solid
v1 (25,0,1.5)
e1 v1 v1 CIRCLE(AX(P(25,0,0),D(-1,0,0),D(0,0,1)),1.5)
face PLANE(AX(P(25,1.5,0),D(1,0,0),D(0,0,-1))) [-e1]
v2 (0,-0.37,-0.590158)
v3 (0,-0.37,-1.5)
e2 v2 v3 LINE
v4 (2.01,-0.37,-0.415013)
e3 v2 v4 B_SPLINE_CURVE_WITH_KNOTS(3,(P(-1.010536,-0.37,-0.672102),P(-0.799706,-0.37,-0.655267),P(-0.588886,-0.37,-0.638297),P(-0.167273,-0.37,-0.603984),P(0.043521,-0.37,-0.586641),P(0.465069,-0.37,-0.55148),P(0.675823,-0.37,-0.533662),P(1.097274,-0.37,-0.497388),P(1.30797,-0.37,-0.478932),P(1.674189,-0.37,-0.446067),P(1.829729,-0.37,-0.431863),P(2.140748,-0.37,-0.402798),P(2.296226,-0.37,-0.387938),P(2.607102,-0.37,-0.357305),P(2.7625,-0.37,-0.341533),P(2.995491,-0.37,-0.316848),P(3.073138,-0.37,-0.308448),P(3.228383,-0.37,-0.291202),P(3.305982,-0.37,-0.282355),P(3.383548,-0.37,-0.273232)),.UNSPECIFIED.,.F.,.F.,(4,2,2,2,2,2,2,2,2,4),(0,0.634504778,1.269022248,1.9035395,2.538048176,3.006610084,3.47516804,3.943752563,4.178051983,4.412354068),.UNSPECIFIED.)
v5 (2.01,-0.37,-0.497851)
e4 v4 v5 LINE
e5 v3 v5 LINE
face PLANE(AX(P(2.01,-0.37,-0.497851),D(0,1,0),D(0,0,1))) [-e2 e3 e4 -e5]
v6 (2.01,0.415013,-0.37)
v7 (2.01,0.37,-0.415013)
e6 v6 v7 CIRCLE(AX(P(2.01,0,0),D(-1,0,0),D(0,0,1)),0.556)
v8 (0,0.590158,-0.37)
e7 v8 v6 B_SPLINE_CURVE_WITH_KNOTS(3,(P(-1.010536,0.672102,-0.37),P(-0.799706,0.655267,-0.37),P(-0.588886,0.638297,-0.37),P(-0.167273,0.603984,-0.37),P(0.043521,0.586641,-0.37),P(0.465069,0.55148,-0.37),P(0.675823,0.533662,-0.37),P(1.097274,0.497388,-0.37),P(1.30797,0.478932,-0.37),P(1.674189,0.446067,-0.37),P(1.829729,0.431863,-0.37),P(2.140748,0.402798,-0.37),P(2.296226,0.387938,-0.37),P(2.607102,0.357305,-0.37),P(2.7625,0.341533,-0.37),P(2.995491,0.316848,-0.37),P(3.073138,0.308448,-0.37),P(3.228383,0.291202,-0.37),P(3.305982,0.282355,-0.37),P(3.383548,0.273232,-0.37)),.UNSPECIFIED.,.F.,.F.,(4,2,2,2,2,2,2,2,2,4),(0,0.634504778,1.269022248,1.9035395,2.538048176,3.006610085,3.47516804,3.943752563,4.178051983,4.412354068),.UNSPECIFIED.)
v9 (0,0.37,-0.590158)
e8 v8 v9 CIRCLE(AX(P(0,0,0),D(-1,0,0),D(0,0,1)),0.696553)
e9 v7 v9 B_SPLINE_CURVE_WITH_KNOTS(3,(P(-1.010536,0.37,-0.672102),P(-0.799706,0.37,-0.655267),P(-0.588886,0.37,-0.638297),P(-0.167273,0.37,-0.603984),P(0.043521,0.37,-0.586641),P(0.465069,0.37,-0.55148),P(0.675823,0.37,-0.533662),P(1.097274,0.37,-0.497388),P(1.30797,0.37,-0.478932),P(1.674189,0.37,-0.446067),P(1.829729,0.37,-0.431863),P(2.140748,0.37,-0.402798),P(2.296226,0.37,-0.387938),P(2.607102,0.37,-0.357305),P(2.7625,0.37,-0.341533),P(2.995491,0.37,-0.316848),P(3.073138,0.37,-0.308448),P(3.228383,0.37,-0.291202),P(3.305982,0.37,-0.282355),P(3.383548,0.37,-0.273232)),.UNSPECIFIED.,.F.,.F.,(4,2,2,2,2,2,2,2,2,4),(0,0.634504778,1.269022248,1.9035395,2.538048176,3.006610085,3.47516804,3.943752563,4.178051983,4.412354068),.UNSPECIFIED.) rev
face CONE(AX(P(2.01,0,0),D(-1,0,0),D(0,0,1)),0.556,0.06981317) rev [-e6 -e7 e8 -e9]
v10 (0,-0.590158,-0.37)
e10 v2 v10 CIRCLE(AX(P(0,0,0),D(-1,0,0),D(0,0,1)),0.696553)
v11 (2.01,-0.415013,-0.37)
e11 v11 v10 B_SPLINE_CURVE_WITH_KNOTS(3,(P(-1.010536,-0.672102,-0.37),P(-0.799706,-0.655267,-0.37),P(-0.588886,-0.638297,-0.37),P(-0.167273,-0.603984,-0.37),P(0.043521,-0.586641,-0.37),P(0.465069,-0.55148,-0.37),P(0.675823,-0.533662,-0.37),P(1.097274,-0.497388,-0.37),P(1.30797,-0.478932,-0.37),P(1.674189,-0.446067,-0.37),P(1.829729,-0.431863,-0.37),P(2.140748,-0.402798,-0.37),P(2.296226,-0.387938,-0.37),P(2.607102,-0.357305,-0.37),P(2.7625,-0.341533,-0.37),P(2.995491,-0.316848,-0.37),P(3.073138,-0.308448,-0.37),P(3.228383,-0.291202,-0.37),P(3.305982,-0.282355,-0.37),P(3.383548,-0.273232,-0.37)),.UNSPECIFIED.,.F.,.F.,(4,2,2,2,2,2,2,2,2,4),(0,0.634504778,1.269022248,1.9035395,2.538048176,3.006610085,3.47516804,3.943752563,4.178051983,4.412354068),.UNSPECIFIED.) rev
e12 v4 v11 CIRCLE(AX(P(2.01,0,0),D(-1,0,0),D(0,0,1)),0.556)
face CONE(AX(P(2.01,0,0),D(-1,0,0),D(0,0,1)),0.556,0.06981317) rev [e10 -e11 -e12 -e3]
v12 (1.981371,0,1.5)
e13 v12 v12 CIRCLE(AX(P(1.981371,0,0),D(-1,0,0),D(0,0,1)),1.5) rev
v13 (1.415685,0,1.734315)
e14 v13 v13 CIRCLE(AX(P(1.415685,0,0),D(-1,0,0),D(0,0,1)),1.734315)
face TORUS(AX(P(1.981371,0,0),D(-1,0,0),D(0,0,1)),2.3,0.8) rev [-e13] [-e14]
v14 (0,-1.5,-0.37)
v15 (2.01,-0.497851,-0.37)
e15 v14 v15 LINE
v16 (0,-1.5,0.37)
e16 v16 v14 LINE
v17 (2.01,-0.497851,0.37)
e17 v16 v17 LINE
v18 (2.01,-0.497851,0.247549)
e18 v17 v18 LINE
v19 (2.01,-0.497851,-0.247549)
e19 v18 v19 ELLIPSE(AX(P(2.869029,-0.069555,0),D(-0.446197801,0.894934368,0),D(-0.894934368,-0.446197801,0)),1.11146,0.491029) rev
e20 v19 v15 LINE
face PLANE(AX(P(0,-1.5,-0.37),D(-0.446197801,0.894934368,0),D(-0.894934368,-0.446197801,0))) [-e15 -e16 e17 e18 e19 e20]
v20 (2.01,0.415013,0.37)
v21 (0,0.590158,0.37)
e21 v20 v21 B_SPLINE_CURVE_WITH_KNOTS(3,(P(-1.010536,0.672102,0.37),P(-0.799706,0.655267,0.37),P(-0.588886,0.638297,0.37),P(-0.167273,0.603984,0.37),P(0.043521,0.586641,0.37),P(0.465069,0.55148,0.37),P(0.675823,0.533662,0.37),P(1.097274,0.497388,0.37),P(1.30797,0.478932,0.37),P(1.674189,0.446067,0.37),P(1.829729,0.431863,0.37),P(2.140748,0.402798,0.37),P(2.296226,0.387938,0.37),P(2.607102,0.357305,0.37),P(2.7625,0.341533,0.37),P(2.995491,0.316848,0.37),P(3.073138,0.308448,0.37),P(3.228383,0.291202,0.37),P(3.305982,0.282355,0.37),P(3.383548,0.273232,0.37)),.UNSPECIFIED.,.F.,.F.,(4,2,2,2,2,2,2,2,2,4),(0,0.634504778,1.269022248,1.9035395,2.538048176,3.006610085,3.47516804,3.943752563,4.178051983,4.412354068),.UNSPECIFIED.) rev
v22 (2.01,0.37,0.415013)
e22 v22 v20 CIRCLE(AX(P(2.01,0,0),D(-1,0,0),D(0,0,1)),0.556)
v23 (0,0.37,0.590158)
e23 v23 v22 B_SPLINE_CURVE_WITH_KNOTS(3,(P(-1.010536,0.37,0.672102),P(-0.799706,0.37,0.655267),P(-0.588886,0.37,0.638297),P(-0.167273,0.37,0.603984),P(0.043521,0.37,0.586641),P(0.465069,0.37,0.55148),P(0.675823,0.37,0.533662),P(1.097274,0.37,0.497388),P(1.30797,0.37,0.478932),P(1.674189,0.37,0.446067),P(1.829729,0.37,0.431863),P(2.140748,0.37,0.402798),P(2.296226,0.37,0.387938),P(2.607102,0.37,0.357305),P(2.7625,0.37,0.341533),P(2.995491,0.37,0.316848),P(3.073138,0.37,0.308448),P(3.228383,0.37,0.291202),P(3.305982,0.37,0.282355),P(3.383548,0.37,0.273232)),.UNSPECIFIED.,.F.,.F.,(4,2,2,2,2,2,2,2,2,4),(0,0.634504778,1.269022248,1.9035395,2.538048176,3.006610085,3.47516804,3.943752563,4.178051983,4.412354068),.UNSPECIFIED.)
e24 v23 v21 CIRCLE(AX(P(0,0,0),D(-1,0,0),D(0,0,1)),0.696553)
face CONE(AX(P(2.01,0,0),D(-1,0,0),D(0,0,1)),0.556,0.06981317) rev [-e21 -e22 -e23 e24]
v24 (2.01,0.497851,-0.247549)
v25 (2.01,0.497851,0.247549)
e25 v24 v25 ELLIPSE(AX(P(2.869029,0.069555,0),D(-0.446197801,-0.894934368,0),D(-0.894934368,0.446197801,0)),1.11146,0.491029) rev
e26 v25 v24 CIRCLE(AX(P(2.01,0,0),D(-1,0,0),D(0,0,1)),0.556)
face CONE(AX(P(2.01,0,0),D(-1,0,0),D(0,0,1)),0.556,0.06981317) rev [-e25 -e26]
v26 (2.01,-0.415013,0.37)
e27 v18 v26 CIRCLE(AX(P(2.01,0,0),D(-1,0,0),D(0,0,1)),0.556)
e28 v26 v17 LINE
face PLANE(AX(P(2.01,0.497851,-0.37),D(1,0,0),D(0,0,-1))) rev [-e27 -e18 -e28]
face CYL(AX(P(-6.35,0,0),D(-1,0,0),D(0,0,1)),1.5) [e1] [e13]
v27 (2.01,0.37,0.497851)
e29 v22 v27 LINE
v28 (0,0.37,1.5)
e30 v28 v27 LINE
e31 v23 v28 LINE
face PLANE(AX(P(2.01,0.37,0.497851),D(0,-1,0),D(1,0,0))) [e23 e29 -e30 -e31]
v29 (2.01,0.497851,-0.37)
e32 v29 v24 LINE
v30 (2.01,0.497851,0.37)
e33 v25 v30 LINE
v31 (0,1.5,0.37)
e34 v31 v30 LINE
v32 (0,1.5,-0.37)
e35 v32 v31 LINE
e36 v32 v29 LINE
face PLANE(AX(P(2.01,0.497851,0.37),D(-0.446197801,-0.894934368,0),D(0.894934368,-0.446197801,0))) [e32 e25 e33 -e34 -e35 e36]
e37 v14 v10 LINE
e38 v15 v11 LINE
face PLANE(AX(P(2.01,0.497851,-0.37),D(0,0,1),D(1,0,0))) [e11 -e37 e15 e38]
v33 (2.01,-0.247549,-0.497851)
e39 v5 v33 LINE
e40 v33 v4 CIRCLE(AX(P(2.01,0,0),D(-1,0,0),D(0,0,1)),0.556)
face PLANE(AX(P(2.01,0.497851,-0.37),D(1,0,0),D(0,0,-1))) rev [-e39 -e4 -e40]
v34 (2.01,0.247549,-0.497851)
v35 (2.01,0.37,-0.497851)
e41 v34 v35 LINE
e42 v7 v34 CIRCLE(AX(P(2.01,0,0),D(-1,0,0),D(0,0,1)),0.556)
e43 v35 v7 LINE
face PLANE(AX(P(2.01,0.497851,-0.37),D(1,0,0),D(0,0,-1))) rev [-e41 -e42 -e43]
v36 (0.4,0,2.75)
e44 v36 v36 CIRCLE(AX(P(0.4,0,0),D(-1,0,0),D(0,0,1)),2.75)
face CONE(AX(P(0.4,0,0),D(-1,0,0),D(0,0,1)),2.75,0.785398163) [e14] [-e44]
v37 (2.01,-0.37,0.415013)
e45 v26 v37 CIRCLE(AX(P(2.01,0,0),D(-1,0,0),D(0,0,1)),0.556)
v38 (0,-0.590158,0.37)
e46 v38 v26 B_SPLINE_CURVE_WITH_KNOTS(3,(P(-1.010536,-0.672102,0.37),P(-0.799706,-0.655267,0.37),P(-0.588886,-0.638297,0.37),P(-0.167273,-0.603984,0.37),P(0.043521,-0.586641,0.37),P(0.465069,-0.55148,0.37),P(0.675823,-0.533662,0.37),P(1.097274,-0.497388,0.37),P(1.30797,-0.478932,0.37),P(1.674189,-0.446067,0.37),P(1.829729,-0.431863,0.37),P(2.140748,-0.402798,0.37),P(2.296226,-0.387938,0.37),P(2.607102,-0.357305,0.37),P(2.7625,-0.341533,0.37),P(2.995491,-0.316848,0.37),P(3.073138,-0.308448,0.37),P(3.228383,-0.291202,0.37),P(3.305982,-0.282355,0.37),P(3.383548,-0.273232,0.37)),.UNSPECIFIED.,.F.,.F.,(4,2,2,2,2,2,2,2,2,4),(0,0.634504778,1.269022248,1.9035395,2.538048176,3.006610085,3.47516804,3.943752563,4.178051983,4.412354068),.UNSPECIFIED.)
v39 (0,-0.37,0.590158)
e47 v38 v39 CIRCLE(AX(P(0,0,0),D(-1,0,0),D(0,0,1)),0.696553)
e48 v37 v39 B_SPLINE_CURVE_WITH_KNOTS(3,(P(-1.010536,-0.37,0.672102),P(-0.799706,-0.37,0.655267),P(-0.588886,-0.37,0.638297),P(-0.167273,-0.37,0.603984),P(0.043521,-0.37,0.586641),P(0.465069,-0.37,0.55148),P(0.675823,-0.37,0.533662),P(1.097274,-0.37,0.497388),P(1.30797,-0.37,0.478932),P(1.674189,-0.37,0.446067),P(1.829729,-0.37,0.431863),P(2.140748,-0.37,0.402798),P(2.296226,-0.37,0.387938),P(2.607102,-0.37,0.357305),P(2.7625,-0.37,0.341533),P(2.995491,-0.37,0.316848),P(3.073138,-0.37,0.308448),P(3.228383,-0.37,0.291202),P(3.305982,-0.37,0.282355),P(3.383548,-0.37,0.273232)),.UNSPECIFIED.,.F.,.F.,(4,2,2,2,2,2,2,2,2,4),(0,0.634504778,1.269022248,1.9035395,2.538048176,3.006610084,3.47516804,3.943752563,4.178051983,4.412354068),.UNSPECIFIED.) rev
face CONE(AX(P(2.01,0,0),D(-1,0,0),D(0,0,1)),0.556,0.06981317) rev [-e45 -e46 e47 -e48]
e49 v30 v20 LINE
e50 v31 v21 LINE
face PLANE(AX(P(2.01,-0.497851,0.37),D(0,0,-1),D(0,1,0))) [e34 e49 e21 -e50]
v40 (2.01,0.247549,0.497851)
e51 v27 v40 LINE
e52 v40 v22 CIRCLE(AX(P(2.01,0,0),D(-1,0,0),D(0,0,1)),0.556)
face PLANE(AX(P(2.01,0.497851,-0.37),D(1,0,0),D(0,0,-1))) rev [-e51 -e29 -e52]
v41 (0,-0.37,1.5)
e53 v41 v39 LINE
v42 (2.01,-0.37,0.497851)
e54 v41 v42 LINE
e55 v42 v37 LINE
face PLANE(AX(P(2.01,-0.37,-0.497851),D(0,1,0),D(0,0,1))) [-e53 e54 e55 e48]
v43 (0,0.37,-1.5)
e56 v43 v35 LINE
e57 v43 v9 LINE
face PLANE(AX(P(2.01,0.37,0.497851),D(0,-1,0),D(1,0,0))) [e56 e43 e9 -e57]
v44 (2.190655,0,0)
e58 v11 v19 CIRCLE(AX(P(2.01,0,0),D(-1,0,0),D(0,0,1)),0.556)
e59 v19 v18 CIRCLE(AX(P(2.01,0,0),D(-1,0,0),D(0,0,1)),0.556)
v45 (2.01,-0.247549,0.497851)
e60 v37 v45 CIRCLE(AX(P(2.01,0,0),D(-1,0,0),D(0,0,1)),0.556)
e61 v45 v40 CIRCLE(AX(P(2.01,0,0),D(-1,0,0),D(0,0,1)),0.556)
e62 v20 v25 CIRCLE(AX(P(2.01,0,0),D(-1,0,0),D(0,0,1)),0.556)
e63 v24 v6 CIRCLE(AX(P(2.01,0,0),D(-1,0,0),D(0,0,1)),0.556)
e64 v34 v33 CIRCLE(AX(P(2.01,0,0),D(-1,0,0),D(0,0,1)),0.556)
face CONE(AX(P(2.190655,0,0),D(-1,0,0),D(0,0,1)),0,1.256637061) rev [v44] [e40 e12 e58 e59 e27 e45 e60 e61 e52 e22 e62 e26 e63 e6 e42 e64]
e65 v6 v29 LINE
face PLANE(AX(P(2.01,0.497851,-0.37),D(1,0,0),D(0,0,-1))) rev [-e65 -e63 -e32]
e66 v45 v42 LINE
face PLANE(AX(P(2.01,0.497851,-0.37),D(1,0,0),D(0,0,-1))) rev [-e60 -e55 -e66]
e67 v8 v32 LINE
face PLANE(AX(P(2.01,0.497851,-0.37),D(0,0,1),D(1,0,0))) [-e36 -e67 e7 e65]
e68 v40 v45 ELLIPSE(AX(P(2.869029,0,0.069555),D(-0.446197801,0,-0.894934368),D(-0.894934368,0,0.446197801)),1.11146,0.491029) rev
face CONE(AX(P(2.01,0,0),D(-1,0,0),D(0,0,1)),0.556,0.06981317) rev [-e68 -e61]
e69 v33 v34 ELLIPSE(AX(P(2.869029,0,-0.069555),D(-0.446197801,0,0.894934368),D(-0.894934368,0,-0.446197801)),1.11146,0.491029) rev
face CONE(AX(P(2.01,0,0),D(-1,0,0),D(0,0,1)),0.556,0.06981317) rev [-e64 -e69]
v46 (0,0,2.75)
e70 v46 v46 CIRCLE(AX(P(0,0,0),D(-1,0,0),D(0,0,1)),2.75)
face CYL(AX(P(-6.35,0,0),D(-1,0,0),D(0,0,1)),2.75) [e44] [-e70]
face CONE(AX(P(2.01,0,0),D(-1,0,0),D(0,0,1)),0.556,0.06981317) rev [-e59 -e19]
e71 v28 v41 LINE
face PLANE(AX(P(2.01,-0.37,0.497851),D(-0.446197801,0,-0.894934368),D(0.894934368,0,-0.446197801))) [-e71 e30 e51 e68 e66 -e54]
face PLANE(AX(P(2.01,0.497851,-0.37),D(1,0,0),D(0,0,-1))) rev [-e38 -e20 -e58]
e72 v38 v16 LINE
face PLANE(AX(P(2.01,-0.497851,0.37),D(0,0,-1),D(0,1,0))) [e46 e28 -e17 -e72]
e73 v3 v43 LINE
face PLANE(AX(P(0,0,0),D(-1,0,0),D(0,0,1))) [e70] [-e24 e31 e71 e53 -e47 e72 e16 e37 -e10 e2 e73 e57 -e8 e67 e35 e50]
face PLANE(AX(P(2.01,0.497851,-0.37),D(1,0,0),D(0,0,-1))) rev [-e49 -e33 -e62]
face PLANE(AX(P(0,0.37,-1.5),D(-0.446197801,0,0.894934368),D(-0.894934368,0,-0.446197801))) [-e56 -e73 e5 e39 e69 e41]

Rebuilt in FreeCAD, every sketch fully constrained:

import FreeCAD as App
import Part
import Sketcher
Q = App.Units.Quantity


def edges_at(feature, points):
    """Names of the edges that pass closest to the given points."""
    edges = feature.Shape.Edges
    near = lambda p: min(range(len(edges)), key=lambda i: edges[i].distToShape(Part.Vertex(*p))[0])
    return sorted({f"Edge{near(p) + 1}" for p in points})


def add_polygon(sketch, points):
    """Adds a closed chain of lines whose ends are joined by coincident constraints."""
    first, n = sketch.GeometryCount, len(points)
    for a, b in zip(points, points[1:] + points[:1]):
        sketch.addGeometry(Part.LineSegment(App.Vector(*a, 0), App.Vector(*b, 0)), False)
    for i in range(n):
        sketch.addConstraint(Sketcher.Constraint("Coincident", first + i, 2, first + (i + 1) % n, 1))

doc = App.newDocument("Part")
body = doc.addObject("PartDesign::Body", "Body")

sketch1 = doc.addObject("Sketcher::SketchObject", "Sketch")
body.addObject(sketch1)
sketch1.AttachmentSupport = (doc.XY_Plane, [""])
sketch1.MapMode = "FlatFace"
add_polygon(sketch1, [(0, 2.75), (0, 0), (25, 0), (25, 1.5), (1.65, 1.5), (0.4, 2.75)])
sketch1.addConstraint([
    Sketcher.Constraint("Vertical", 0),
    Sketcher.Constraint("Horizontal", 1),
    Sketcher.Constraint("Vertical", 2),
    Sketcher.Constraint("Horizontal", 3),
    Sketcher.Constraint("Horizontal", 5),
    Sketcher.Constraint("Coincident", 0, 2, -1, 1),
    Sketcher.Constraint("DistanceX", 1, 1, 1, 2, Q("25 mm")),
    Sketcher.Constraint("Angle", 4, Q("135 deg")),
    Sketcher.Constraint("DistanceX", 5, 2, 5, 1, Q("0.4 mm")),
    Sketcher.Constraint("DistanceY", 2, 1, 2, 2, Q("1.5 mm")),
    Sketcher.Constraint("DistanceX", 3, 2, 3, 1, Q("23.35 mm")),
])
revolution = doc.addObject("PartDesign::Revolution", "Revolution")
body.addObject(revolution)
revolution.Profile = sketch1
revolution.ReferenceAxis = (sketch1, ["H_Axis"])
revolution.Angle = 360
doc.recompute()

fillet = doc.addObject("PartDesign::Fillet", "Fillet")
body.addObject(fillet)
fillet.Base = (revolution, edges_at(revolution, [(1.65, -1.5, 0)]))
fillet.Radius = 0.8

sketch2 = doc.addObject("Sketcher::SketchObject", "Sketch001")
body.addObject(sketch2)
sketch2.AttachmentSupport = (doc.YZ_Plane, [""])
sketch2.MapMode = "FlatFace"
add_polygon(sketch2, [(1.5, -0.4), (-1.5, -0.4), (-1.5, 0.4), (1.5, 0.4)])
sketch2.addConstraint([
    Sketcher.Constraint("Horizontal", 0),
    Sketcher.Constraint("Vertical", 1),
    Sketcher.Constraint("Horizontal", 2),
    Sketcher.Constraint("Vertical", 3),
    Sketcher.Constraint("Symmetric", 0, 2, 2, 2, -1, 1),
    Sketcher.Constraint("DistanceX", 0, 2, 0, 1, Q("3 mm")),
    Sketcher.Constraint("DistanceY", 1, 1, 1, 2, Q("0.74 mm")),
])

sketch3 = doc.addObject("Sketcher::SketchObject", "Sketch002")
body.addObject(sketch3)
sketch3.AttachmentSupport = (doc.YZ_Plane, [""])
sketch3.MapMode = "FlatFace"
sketch3.AttachmentOffset = App.Placement(App.Vector(0, 0, 2.01), App.Rotation())
add_polygon(sketch3, [(0.5, -0.4), (-0.5, -0.4), (-0.5, 0.4), (0.5, 0.4)])
sketch3.addConstraint([
    Sketcher.Constraint("Horizontal", 0),
    Sketcher.Constraint("Vertical", 1),
    Sketcher.Constraint("Horizontal", 2),
    Sketcher.Constraint("Vertical", 3),
    Sketcher.Constraint("Symmetric", 0, 2, 2, 2, -1, 1),
    Sketcher.Constraint("DistanceY", 1, 1, 1, 2, Q("0.74 mm")),
    Sketcher.Constraint("DistanceX", 0, 2, 0, 1, Q("0.995702 mm")),
])

subtractiveloft = doc.addObject("PartDesign::SubtractiveLoft", "SubtractiveLoft")
body.addObject(subtractiveloft)
subtractiveloft.Profile = sketch2
subtractiveloft.Sections = [sketch3]
doc.recompute()

polarpattern = doc.addObject("PartDesign::PolarPattern", "PolarPattern")
body.addObject(polarpattern)
polarpattern.Originals = [subtractiveloft]
polarpattern.Axis = (doc.X_Axis, [""])
polarpattern.Angle = 90
polarpattern.Occurrences = 2
body.Tip = polarpattern

sketch4 = doc.addObject("Sketcher::SketchObject", "Sketch003")
body.addObject(sketch4)
sketch4.AttachmentSupport = (doc.XY_Plane, [""])
sketch4.MapMode = "FlatFace"
add_polygon(sketch4, [(0, 0.7), (0, 0), (2.2, 0), (2, 0.6)])
sketch4.addConstraint([
    Sketcher.Constraint("Vertical", 0),
    Sketcher.Constraint("Horizontal", 1),
    Sketcher.Constraint("Coincident", 0, 2, -1, 1),
    Sketcher.Constraint("Angle", 2, Q("108 deg")),
    Sketcher.Constraint("Angle", 3, Q("176 deg")),
    Sketcher.Constraint("DistanceX", -1, 1, 2, 2, Q("2.01 mm")),
    Sketcher.Constraint("DistanceY", -1, 1, 2, 2, Q("0.556 mm")),
])
groove = doc.addObject("PartDesign::Groove", "Groove")
body.addObject(groove)
groove.Profile = sketch4
groove.ReferenceAxis = (sketch4, ["H_Axis"])
groove.Angle = 360

doc.recompute()
